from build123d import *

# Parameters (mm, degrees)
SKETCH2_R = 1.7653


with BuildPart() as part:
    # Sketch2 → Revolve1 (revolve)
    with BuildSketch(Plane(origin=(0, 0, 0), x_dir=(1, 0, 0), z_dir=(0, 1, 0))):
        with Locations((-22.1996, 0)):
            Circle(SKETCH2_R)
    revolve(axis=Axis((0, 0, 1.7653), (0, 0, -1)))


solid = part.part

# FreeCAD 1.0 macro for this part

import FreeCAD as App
import Part
import Sketcher

V = App.Vector
Q = App.Units.Quantity

doc = App.newDocument("Part")
body = doc.addObject("PartDesign::Body", "Body")

sketch1 = body.newObject("Sketcher::SketchObject", "Sketch")
sketch1.AttachmentSupport = (doc.getObject("XZ_Plane"), [""])
sketch1.MapMode = "FlatFace"
sketch1.addGeometry(Part.Circle(V(-22.1996, 0, 0), V(0, 0, 1), 1.7653), False)
sketch1.addConstraint([
    Sketcher.Constraint("PointOnObject", 0, 3, -1),
    Sketcher.Constraint("Diameter", 0, Q("0.139 in")),
    Sketcher.Constraint("DistanceX", 0, 3, -1, 1, Q("0.874 in")),
])
revolution = body.newObject("PartDesign::Revolution", "Revolution")
revolution.Profile = sketch1
revolution.ReferenceAxis = (sketch1, ["V_Axis"])
revolution.Angle = 360

doc.recompute()
